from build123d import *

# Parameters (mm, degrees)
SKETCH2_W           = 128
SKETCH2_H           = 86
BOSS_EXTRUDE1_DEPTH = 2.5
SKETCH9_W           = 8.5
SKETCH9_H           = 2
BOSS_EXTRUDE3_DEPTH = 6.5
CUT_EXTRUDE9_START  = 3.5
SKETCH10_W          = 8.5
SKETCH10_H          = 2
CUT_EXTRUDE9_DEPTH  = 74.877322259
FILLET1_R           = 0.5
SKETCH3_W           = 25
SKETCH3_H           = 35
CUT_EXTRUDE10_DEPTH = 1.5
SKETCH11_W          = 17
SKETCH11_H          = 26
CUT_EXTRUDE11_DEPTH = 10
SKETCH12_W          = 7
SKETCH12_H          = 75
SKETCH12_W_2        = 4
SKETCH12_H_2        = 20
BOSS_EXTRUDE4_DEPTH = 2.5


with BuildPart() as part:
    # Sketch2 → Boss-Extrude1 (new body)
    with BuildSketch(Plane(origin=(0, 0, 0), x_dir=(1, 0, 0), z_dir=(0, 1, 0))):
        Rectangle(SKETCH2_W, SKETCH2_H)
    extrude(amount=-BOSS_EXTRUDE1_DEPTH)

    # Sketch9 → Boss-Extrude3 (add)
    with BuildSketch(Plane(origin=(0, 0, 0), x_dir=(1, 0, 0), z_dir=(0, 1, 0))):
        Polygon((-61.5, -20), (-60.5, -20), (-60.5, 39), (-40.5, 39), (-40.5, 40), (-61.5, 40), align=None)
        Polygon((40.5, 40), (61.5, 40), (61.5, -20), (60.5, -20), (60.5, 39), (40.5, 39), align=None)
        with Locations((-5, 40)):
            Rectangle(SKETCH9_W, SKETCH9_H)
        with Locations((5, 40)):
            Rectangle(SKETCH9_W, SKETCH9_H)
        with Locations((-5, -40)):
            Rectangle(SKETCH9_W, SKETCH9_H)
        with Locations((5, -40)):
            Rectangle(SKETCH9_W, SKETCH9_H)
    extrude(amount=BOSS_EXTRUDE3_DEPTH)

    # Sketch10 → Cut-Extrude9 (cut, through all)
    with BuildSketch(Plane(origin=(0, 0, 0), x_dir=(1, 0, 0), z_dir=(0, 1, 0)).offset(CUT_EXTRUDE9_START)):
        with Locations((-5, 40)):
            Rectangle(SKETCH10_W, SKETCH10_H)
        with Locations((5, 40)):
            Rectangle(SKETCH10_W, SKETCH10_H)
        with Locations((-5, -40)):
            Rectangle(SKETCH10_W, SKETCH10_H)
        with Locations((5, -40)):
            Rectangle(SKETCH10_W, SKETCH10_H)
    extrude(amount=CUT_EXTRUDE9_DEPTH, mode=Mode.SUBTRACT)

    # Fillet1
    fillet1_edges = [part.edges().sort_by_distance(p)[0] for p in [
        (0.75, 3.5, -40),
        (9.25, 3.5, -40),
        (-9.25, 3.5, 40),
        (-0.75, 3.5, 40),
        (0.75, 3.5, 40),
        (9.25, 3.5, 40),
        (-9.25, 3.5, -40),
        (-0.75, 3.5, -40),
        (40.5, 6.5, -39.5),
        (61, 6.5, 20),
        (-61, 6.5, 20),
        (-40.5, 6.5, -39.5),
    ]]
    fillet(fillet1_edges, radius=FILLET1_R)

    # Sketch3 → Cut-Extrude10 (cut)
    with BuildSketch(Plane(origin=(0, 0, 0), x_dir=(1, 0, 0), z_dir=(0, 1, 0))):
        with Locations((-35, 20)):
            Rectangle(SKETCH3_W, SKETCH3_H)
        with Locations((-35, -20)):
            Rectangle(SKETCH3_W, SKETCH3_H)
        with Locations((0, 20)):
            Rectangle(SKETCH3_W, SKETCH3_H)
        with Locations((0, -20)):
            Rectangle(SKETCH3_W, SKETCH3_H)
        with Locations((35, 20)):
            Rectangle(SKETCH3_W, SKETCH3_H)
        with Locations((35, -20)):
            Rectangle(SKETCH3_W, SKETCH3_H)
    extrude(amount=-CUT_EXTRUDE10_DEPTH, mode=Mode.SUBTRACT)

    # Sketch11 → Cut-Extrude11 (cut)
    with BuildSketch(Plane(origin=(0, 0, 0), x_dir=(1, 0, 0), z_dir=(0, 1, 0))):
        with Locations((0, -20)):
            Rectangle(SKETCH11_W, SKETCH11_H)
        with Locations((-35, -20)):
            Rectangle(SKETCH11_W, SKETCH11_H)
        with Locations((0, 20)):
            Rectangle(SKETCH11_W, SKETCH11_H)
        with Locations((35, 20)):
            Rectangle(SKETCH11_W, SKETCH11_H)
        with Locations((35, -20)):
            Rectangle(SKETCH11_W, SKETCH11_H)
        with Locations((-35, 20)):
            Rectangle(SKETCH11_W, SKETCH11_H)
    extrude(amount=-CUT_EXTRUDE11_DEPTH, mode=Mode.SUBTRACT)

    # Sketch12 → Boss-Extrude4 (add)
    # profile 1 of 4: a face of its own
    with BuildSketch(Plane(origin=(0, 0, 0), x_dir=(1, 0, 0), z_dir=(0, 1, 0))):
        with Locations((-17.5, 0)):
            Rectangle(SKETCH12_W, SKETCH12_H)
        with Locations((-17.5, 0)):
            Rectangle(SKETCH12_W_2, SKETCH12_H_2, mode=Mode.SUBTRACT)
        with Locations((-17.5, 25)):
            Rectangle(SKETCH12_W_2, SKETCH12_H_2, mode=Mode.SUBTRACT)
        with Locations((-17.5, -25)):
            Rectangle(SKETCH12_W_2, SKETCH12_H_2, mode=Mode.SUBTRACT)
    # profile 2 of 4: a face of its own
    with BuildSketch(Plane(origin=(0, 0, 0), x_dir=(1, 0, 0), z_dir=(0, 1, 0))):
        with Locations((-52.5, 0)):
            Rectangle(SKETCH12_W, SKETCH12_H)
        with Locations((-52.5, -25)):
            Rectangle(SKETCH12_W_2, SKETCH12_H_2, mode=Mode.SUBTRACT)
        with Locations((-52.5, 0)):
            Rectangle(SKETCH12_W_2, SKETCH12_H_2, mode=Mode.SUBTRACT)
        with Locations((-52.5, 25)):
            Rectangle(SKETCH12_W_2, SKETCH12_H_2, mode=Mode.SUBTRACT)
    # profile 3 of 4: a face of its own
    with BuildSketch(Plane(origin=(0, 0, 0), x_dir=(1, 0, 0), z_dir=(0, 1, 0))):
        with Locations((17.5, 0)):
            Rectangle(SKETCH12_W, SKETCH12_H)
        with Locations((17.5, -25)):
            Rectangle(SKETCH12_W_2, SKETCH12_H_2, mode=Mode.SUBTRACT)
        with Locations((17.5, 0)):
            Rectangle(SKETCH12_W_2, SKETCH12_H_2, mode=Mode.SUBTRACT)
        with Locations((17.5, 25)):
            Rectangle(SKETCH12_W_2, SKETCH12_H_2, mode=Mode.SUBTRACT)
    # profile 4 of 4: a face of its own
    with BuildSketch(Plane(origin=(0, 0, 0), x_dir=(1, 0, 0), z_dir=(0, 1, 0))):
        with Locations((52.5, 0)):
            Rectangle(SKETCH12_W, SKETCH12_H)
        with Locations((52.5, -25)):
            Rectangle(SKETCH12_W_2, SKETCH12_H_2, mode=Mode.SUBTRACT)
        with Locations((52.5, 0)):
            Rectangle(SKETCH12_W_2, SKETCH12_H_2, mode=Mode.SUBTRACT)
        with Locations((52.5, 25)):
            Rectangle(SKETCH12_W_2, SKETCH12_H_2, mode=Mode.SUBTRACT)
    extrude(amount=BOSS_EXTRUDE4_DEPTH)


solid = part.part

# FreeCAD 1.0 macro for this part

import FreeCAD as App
import Part
import Sketcher
from FreeCAD import Vector
Q = App.Units.Quantity


def edges_at(feature, points):
    """Names of the edges that pass closest to the given points."""
    edges = feature.Shape.Edges
    near = lambda p: min(range(len(edges)), key=lambda i: edges[i].distToShape(Part.Vertex(*p))[0])
    return sorted({f"Edge{near(p) + 1}" for p in points})


def add_polygon(sketch, points):
    """Adds a closed chain of lines whose ends are joined by coincident constraints."""
    first, n = sketch.GeometryCount, len(points)
    for a, b in zip(points, points[1:] + points[:1]):
        sketch.addGeometry(Part.LineSegment(App.Vector(*a, 0), App.Vector(*b, 0)), False)
    for i in range(n):
        sketch.addConstraint(Sketcher.Constraint("Coincident", first + i, 2, first + (i + 1) % n, 1))

doc = App.newDocument("Part")
params = doc.addObject("Spreadsheet::Sheet", "Params")
for row, (alias, value) in enumerate([
    ("sketch1_width", "128 mm"),
    ("sketch1_height", "86 mm"),
    ("pad1_length", "2.5 mm"),
    ("sketch2_width", "1 mm"),
    ("sketch2_width2", "20 mm"),
    ("sketch2_height", "59 mm"),
    ("sketch2_height2", "2 mm"),
    ("sketch2_width3", "8.5 mm"),
    ("pad2_length", "6.5 mm"),
    ("sketch3_height", "2 mm"),
    ("sketch3_width", "8.5 mm"),
    ("fillet_radius", "0.5 mm"),
    ("sketch4_width", "25 mm"),
    ("sketch4_height", "35 mm"),
    ("pocket2_length", "1.5 mm"),
    ("sketch5_width", "17 mm"),
    ("sketch5_height", "26 mm"),
    ("pocket3_length", "10 mm"),
    ("sketch6_width", "7 mm"),
    ("sketch6_width2", "4 mm"),
    ("sketch6_height", "75 mm"),
    ("sketch6_height2", "20 mm"),
    ("pad3_length", "2.5 mm"),
], start=1):
    params.set(f"A{row}", alias)
    params.set(f"B{row}", "=" + value)
    params.setAlias(f"B{row}", alias)

body = doc.addObject("PartDesign::Body", "Body")

# Sketch on XZ plane
sketch1 = doc.addObject("Sketcher::SketchObject", "Sketch")
body.addObject(sketch1)
sketch1.AttachmentSupport = (doc.XZ_Plane, [""])
sketch1.MapMode = "FlatFace"
add_polygon(sketch1, [(-64, -43), (-64, 43), (64, 43), (64, -43)])  # lines 0-3
sketch1.addConstraint([
    Sketcher.Constraint("Vertical", 0),
    Sketcher.Constraint("Horizontal", 1),
    Sketcher.Constraint("Vertical", 2),
    Sketcher.Constraint("Horizontal", 3),
    Sketcher.Constraint("Symmetric", 0, 2, 2, 2, -1, 1),
    Sketcher.Constraint("DistanceX", 1, 1, 1, 2, Q("128 mm")),
    Sketcher.Constraint("DistanceY", 0, 1, 0, 2, Q("86 mm")),
])
sketch1.setExpression("Constraints[9]", "Params.sketch1_width")
sketch1.setExpression("Constraints[10]", "Params.sketch1_height")
pad1 = doc.addObject("PartDesign::Pad", "Pad")
body.addObject(pad1)
pad1.Profile = sketch1
pad1.setExpression("Length", "Params.pad1_length")

# Sketch on XZ plane
sketch2 = doc.addObject("Sketcher::SketchObject", "Sketch001")
body.addObject(sketch2)
sketch2.AttachmentSupport = (doc.XZ_Plane, [""])
sketch2.MapMode = "FlatFace"
add_polygon(sketch2, [(-61.5, 20), (-60.5, 20), (-60.5, -39), (-40.5, -39), (-40.5, -40), (-61.5, -40)])  # lines 0-5
add_polygon(sketch2, [(61.5, -40), (40.5, -40), (40.5, -39), (60.5, -39), (60.5, 20), (61.5, 20)])  # lines 6-11
add_polygon(sketch2, [(-9.25, -41), (-9.25, -39), (-0.75, -39), (-0.75, -41)])  # lines 12-15
add_polygon(sketch2, [(0.75, -41), (0.75, -39), (9.25, -39), (9.25, -41)])  # lines 16-19
add_polygon(sketch2, [(-9.25, 39), (-9.25, 41), (-0.75, 41), (-0.75, 39)])  # lines 20-23
add_polygon(sketch2, [(0.75, 39), (0.75, 41), (9.25, 41), (9.25, 39)])  # lines 24-27
sketch2.addConstraint([
    Sketcher.Constraint("Horizontal", 0),
    Sketcher.Constraint("Vertical", 1),
    Sketcher.Constraint("Horizontal", 2),
    Sketcher.Constraint("Vertical", 3),
    Sketcher.Constraint("Horizontal", 4),
    Sketcher.Constraint("Vertical", 5),
    Sketcher.Constraint("Horizontal", 6),
    Sketcher.Constraint("Vertical", 7),
    Sketcher.Constraint("Horizontal", 8),
    Sketcher.Constraint("Vertical", 9),
    Sketcher.Constraint("Horizontal", 10),
    Sketcher.Constraint("Vertical", 11),
    Sketcher.Constraint("Vertical", 12),
    Sketcher.Constraint("Horizontal", 13),
    Sketcher.Constraint("Vertical", 14),
    Sketcher.Constraint("Horizontal", 15),
    Sketcher.Constraint("Vertical", 16),
    Sketcher.Constraint("Horizontal", 17),
    Sketcher.Constraint("Vertical", 18),
    Sketcher.Constraint("Horizontal", 19),
    Sketcher.Constraint("Vertical", 20),
    Sketcher.Constraint("Horizontal", 21),
    Sketcher.Constraint("Vertical", 22),
    Sketcher.Constraint("Horizontal", 23),
    Sketcher.Constraint("Vertical", 24),
    Sketcher.Constraint("Horizontal", 25),
    Sketcher.Constraint("Vertical", 26),
    Sketcher.Constraint("Horizontal", 27),
    Sketcher.Constraint("Symmetric", 18, 2, 20, 2, -1, 1),
    Sketcher.Constraint("Symmetric", 16, 2, 22, 2, -1, 1),
    Sketcher.Constraint("Symmetric", 14, 2, 24, 2, -1, 1),
    Sketcher.Constraint("Symmetric", 12, 2, 26, 2, -1, 1),
    Sketcher.Constraint("Symmetric", 3, 2, 6, 2, -2),
    Sketcher.Constraint("Symmetric", 1, 2, 8, 2, -2),
    Sketcher.Constraint("Symmetric", 5, 2, 10, 2, -2),
    Sketcher.Constraint("Symmetric", 13, 2, 16, 2, -2),
    Sketcher.Constraint("Symmetric", 15, 2, 18, 2, -2),
    Sketcher.Constraint("Horizontal", 8, 2, 12, 2),
    Sketcher.Constraint("Equal", 10, 3),
    Sketcher.Constraint("DistanceX", 0, 1, 0, 2, Q("1 mm")),
    Sketcher.Constraint("DistanceX", 2, 1, 2, 2, Q("20 mm")),
    Sketcher.Constraint("DistanceY", 1, 2, 1, 1, Q("59 mm")),
    Sketcher.Constraint("DistanceY", 12, 1, 12, 2, Q("2 mm")),
    Sketcher.Constraint("DistanceX", 13, 1, 13, 2, Q("8.5 mm")),
    Sketcher.Constraint("DistanceY", -1, 1, 0, 2, Q("20 mm")),
    Sketcher.Constraint("DistanceX", 3, 2, 6, 2, Q("81 mm")),
    Sketcher.Constraint("DistanceX", 12, 2, 16, 2, Q("10 mm")),
])
sketch2.setExpression("Constraints[67]", "Params.sketch2_width")
sketch2.setExpression("Constraints[68]", "Params.sketch2_width2")
sketch2.setExpression("Constraints[69]", "Params.sketch2_height")
sketch2.setExpression("Constraints[70]", "Params.sketch2_height2")
sketch2.setExpression("Constraints[71]", "Params.sketch2_width3")
pad2 = doc.addObject("PartDesign::Pad", "Pad001")
body.addObject(pad2)
pad2.Profile = sketch2
pad2.setExpression("Length", "Params.pad2_length")
pad2.Reversed = True

# Sketch on XZ plane
sketch3 = doc.addObject("Sketcher::SketchObject", "Sketch002")
body.addObject(sketch3)
sketch3.AttachmentSupport = (doc.XZ_Plane, [""])
sketch3.MapMode = "FlatFace"
sketch3.AttachmentOffset = App.Placement(Vector(0, 0, -3.5), App.Rotation())
add_polygon(sketch3, [(-9.25, -41), (-9.25, -39), (-0.75, -39), (-0.75, -41)])  # lines 0-3
add_polygon(sketch3, [(0.75, -41), (0.75, -39), (9.25, -39), (9.25, -41)])  # lines 4-7
add_polygon(sketch3, [(-9.25, 39), (-9.25, 41), (-0.75, 41), (-0.75, 39)])  # lines 8-11
add_polygon(sketch3, [(0.75, 39), (0.75, 41), (9.25, 41), (9.25, 39)])  # lines 12-15
sketch3.addConstraint([
    Sketcher.Constraint("Vertical", 0),
    Sketcher.Constraint("Horizontal", 1),
    Sketcher.Constraint("Vertical", 2),
    Sketcher.Constraint("Horizontal", 3),
    Sketcher.Constraint("Vertical", 4),
    Sketcher.Constraint("Horizontal", 5),
    Sketcher.Constraint("Vertical", 6),
    Sketcher.Constraint("Horizontal", 7),
    Sketcher.Constraint("Vertical", 8),
    Sketcher.Constraint("Horizontal", 9),
    Sketcher.Constraint("Vertical", 10),
    Sketcher.Constraint("Horizontal", 11),
    Sketcher.Constraint("Vertical", 12),
    Sketcher.Constraint("Horizontal", 13),
    Sketcher.Constraint("Vertical", 14),
    Sketcher.Constraint("Horizontal", 15),
    Sketcher.Constraint("Symmetric", 6, 2, 8, 2, -1, 1),
    Sketcher.Constraint("Symmetric", 4, 2, 10, 2, -1, 1),
    Sketcher.Constraint("Symmetric", 2, 2, 12, 2, -1, 1),
    Sketcher.Constraint("Symmetric", 0, 2, 14, 2, -1, 1),
    Sketcher.Constraint("Symmetric", 1, 2, 4, 2, -2),
    Sketcher.Constraint("Symmetric", 3, 2, 6, 2, -2),
    Sketcher.Constraint("DistanceY", 0, 1, 0, 2, Q("2 mm")),
    Sketcher.Constraint("DistanceX", 1, 1, 1, 2, Q("8.5 mm")),
    Sketcher.Constraint("DistanceY", 0, 2, -1, 1, Q("39 mm")),
    Sketcher.Constraint("DistanceX", 0, 2, 4, 2, Q("10 mm")),
])
sketch3.setExpression("Constraints[38]", "Params.sketch3_height")
sketch3.setExpression("Constraints[39]", "Params.sketch3_width")
pocket1 = doc.addObject("PartDesign::Pocket", "Pocket")
body.addObject(pocket1)
pocket1.Profile = sketch3
pocket1.Type = "ThroughAll"
doc.recompute()

fillet = doc.addObject("PartDesign::Fillet", "Fillet")
body.addObject(fillet)
fillet.Base = (pocket1, edges_at(pocket1, [
    (0.75, 3.5, -40),
    (9.25, 3.5, -40),
    (-9.25, 3.5, 40),
    (-0.75, 3.5, 40),
    (0.75, 3.5, 40),
    (9.25, 3.5, 40),
    (-9.25, 3.5, -40),
    (-0.75, 3.5, -40),
    (40.5, 6.5, -39.5),
    (61, 6.5, 20),
    (-61, 6.5, 20),
    (-40.5, 6.5, -39.5),
]))
fillet.setExpression("Radius", "Params.fillet_radius")

# Sketch on XZ plane
sketch4 = doc.addObject("Sketcher::SketchObject", "Sketch003")
body.addObject(sketch4)
sketch4.AttachmentSupport = (doc.XZ_Plane, [""])
sketch4.MapMode = "FlatFace"
add_polygon(sketch4, [(-47.5, -37.5), (-47.5, -2.5), (-22.5, -2.5), (-22.5, -37.5)])  # lines 0-3
add_polygon(sketch4, [(-47.5, 2.5), (-47.5, 37.5), (-22.5, 37.5), (-22.5, 2.5)])  # lines 4-7
add_polygon(sketch4, [(-12.5, -37.5), (-12.5, -2.5), (12.5, -2.5), (12.5, -37.5)])  # lines 8-11
add_polygon(sketch4, [(-12.5, 2.5), (-12.5, 37.5), (12.5, 37.5), (12.5, 2.5)])  # lines 12-15
add_polygon(sketch4, [(22.5, -37.5), (22.5, -2.5), (47.5, -2.5), (47.5, -37.5)])  # lines 16-19
add_polygon(sketch4, [(22.5, 2.5), (22.5, 37.5), (47.5, 37.5), (47.5, 2.5)])  # lines 20-23
sketch4.addConstraint([
    Sketcher.Constraint("Vertical", 0),
    Sketcher.Constraint("Horizontal", 1),
    Sketcher.Constraint("Vertical", 2),
    Sketcher.Constraint("Horizontal", 3),
    Sketcher.Constraint("Vertical", 4),
    Sketcher.Constraint("Horizontal", 5),
    Sketcher.Constraint("Vertical", 6),
    Sketcher.Constraint("Horizontal", 7),
    Sketcher.Constraint("Vertical", 8),
    Sketcher.Constraint("Horizontal", 9),
    Sketcher.Constraint("Vertical", 10),
    Sketcher.Constraint("Horizontal", 11),
    Sketcher.Constraint("Vertical", 12),
    Sketcher.Constraint("Horizontal", 13),
    Sketcher.Constraint("Vertical", 14),
    Sketcher.Constraint("Horizontal", 15),
    Sketcher.Constraint("Vertical", 16),
    Sketcher.Constraint("Horizontal", 17),
    Sketcher.Constraint("Vertical", 18),
    Sketcher.Constraint("Horizontal", 19),
    Sketcher.Constraint("Vertical", 20),
    Sketcher.Constraint("Horizontal", 21),
    Sketcher.Constraint("Vertical", 22),
    Sketcher.Constraint("Horizontal", 23),
    Sketcher.Constraint("Symmetric", 10, 2, 12, 2, -1, 1),
    Sketcher.Constraint("Symmetric", 8, 2, 14, 2, -1, 1),
    Sketcher.Constraint("Symmetric", 6, 2, 16, 2, -1, 1),
    Sketcher.Constraint("Symmetric", 4, 2, 18, 2, -1, 1),
    Sketcher.Constraint("Symmetric", 2, 2, 20, 2, -1, 1),
    Sketcher.Constraint("Symmetric", 0, 2, 22, 2, -1, 1),
    Sketcher.Constraint("Symmetric", 1, 2, 16, 2, -2),
    Sketcher.Constraint("Symmetric", 3, 2, 18, 2, -2),
    Sketcher.Constraint("Horizontal", 1, 2, 8, 2),
    Sketcher.Constraint("Horizontal", 3, 2, 10, 2),
    Sketcher.Constraint("Vertical", 11, 2, 12, 2),
    Sketcher.Constraint("Equal", 7, 9),
    Sketcher.Constraint("DistanceX", 1, 1, 1, 2, Q("25 mm")),
    Sketcher.Constraint("DistanceY", 0, 1, 0, 2, Q("35 mm")),
    Sketcher.Constraint("DistanceY", 0, 2, 4, 2, Q("40 mm")),
    Sketcher.Constraint("DistanceX", 1, 2, 8, 2, Q("10 mm")),
])
sketch4.setExpression("Constraints[60]", "Params.sketch4_width")
sketch4.setExpression("Constraints[61]", "Params.sketch4_height")
pocket2 = doc.addObject("PartDesign::Pocket", "Pocket001")
body.addObject(pocket2)
pocket2.Profile = sketch4
pocket2.setExpression("Length", "Params.pocket2_length")
pocket2.Reversed = True

# Sketch on XZ plane
sketch5 = doc.addObject("Sketcher::SketchObject", "Sketch004")
body.addObject(sketch5)
sketch5.AttachmentSupport = (doc.XZ_Plane, [""])
sketch5.MapMode = "FlatFace"
add_polygon(sketch5, [(-8.5, 7), (-8.5, 33), (8.5, 33), (8.5, 7)])  # lines 0-3
add_polygon(sketch5, [(-43.5, 7), (-43.5, 33), (-26.5, 33), (-26.5, 7)])  # lines 4-7
add_polygon(sketch5, [(-8.5, -33), (-8.5, -7), (8.5, -7), (8.5, -33)])  # lines 8-11
add_polygon(sketch5, [(26.5, -33), (26.5, -7), (43.5, -7), (43.5, -33)])  # lines 12-15
add_polygon(sketch5, [(26.5, 7), (26.5, 33), (43.5, 33), (43.5, 7)])  # lines 16-19
add_polygon(sketch5, [(-43.5, -33), (-43.5, -7), (-26.5, -7), (-26.5, -33)])  # lines 20-23
sketch5.addConstraint([
    Sketcher.Constraint("Vertical", 0),
    Sketcher.Constraint("Horizontal", 1),
    Sketcher.Constraint("Vertical", 2),
    Sketcher.Constraint("Horizontal", 3),
    Sketcher.Constraint("Vertical", 4),
    Sketcher.Constraint("Horizontal", 5),
    Sketcher.Constraint("Vertical", 6),
    Sketcher.Constraint("Horizontal", 7),
    Sketcher.Constraint("Vertical", 8),
    Sketcher.Constraint("Horizontal", 9),
    Sketcher.Constraint("Vertical", 10),
    Sketcher.Constraint("Horizontal", 11),
    Sketcher.Constraint("Vertical", 12),
    Sketcher.Constraint("Horizontal", 13),
    Sketcher.Constraint("Vertical", 14),
    Sketcher.Constraint("Horizontal", 15),
    Sketcher.Constraint("Vertical", 16),
    Sketcher.Constraint("Horizontal", 17),
    Sketcher.Constraint("Vertical", 18),
    Sketcher.Constraint("Horizontal", 19),
    Sketcher.Constraint("Vertical", 20),
    Sketcher.Constraint("Horizontal", 21),
    Sketcher.Constraint("Vertical", 22),
    Sketcher.Constraint("Horizontal", 23),
    Sketcher.Constraint("Symmetric", 2, 2, 8, 2, -1, 1),
    Sketcher.Constraint("Symmetric", 0, 2, 10, 2, -1, 1),
    Sketcher.Constraint("Symmetric", 6, 2, 12, 2, -1, 1),
    Sketcher.Constraint("Symmetric", 4, 2, 14, 2, -1, 1),
    Sketcher.Constraint("Symmetric", 18, 2, 20, 2, -1, 1),
    Sketcher.Constraint("Symmetric", 16, 2, 22, 2, -1, 1),
    Sketcher.Constraint("Symmetric", 5, 2, 16, 2, -2),
    Sketcher.Constraint("Symmetric", 7, 2, 18, 2, -2),
    Sketcher.Constraint("Horizontal", 1, 2, 4, 2),
    Sketcher.Constraint("Horizontal", 3, 2, 6, 2),
    Sketcher.Constraint("Vertical", 3, 2, 8, 2),
    Sketcher.Constraint("Equal", 3, 5),
    Sketcher.Constraint("DistanceX", 1, 1, 1, 2, Q("17 mm")),
    Sketcher.Constraint("DistanceY", 0, 1, 0, 2, Q("26 mm")),
    Sketcher.Constraint("DistanceY", -1, 1, 0, 2, Q("33 mm")),
    Sketcher.Constraint("DistanceX", 4, 2, 0, 2, Q("35 mm")),
])
sketch5.setExpression("Constraints[60]", "Params.sketch5_width")
sketch5.setExpression("Constraints[61]", "Params.sketch5_height")
pocket3 = doc.addObject("PartDesign::Pocket", "Pocket002")
body.addObject(pocket3)
pocket3.Profile = sketch5
pocket3.setExpression("Length", "Params.pocket3_length")
pocket3.Reversed = True

# Sketch on XZ plane
sketch6 = doc.addObject("Sketcher::SketchObject", "Sketch005")
body.addObject(sketch6)
sketch6.AttachmentSupport = (doc.XZ_Plane, [""])
sketch6.MapMode = "FlatFace"
add_polygon(sketch6, [(-21, -37.5), (-21, 37.5), (-14, 37.5), (-14, -37.5)])  # lines 0-3
add_polygon(sketch6, [(-15.5, 35), (-19.5, 35), (-19.5, 15), (-15.5, 15)])  # lines 4-7
add_polygon(sketch6, [(-15.5, 10), (-19.5, 10), (-19.5, -10), (-15.5, -10)])  # lines 8-11
add_polygon(sketch6, [(-15.5, -15), (-19.5, -15), (-19.5, -35), (-15.5, -35)])  # lines 12-15
add_polygon(sketch6, [(-56, -37.5), (-56, 37.5), (-49, 37.5), (-49, -37.5)])  # lines 16-19
add_polygon(sketch6, [(-50.5, 35), (-54.5, 35), (-54.5, 15), (-50.5, 15)])  # lines 20-23
add_polygon(sketch6, [(-50.5, 10), (-54.5, 10), (-54.5, -10), (-50.5, -10)])  # lines 24-27
add_polygon(sketch6, [(-50.5, -15), (-54.5, -15), (-54.5, -35), (-50.5, -35)])  # lines 28-31
add_polygon(sketch6, [(14, -37.5), (14, 37.5), (21, 37.5), (21, -37.5)])  # lines 32-35
add_polygon(sketch6, [(19.5, 35), (15.5, 35), (15.5, 15), (19.5, 15)])  # lines 36-39
add_polygon(sketch6, [(19.5, 10), (15.5, 10), (15.5, -10), (19.5, -10)])  # lines 40-43
add_polygon(sketch6, [(19.5, -15), (15.5, -15), (15.5, -35), (19.5, -35)])  # lines 44-47
add_polygon(sketch6, [(49, -37.5), (49, 37.5), (56, 37.5), (56, -37.5)])  # lines 48-51
add_polygon(sketch6, [(54.5, 35), (50.5, 35), (50.5, 15), (54.5, 15)])  # lines 52-55
add_polygon(sketch6, [(54.5, 10), (50.5, 10), (50.5, -10), (54.5, -10)])  # lines 56-59
add_polygon(sketch6, [(54.5, -15), (50.5, -15), (50.5, -35), (54.5, -35)])  # lines 60-63
sketch6.addConstraint([
    Sketcher.Constraint("Vertical", 0),
    Sketcher.Constraint("Horizontal", 1),
    Sketcher.Constraint("Vertical", 2),
    Sketcher.Constraint("Horizontal", 3),
    Sketcher.Constraint("Horizontal", 4),
    Sketcher.Constraint("Vertical", 5),
    Sketcher.Constraint("Horizontal", 6),
    Sketcher.Constraint("Vertical", 7),
    Sketcher.Constraint("Horizontal", 8),
    Sketcher.Constraint("Vertical", 9),
    Sketcher.Constraint("Horizontal", 10),
    Sketcher.Constraint("Vertical", 11),
    Sketcher.Constraint("Horizontal", 12),
    Sketcher.Constraint("Vertical", 13),
    Sketcher.Constraint("Horizontal", 14),
    Sketcher.Constraint("Vertical", 15),
    Sketcher.Constraint("Vertical", 16),
    Sketcher.Constraint("Horizontal", 17),
    Sketcher.Constraint("Vertical", 18),
    Sketcher.Constraint("Horizontal", 19),
    Sketcher.Constraint("Horizontal", 20),
    Sketcher.Constraint("Vertical", 21),
    Sketcher.Constraint("Horizontal", 22),
    Sketcher.Constraint("Vertical", 23),
    Sketcher.Constraint("Horizontal", 24),
    Sketcher.Constraint("Vertical", 25),
    Sketcher.Constraint("Horizontal", 26),
    Sketcher.Constraint("Vertical", 27),
    Sketcher.Constraint("Horizontal", 28),
    Sketcher.Constraint("Vertical", 29),
    Sketcher.Constraint("Horizontal", 30),
    Sketcher.Constraint("Vertical", 31),
    Sketcher.Constraint("Vertical", 32),
    Sketcher.Constraint("Horizontal", 33),
    Sketcher.Constraint("Vertical", 34),
    Sketcher.Constraint("Horizontal", 35),
    Sketcher.Constraint("Horizontal", 36),
    Sketcher.Constraint("Vertical", 37),
    Sketcher.Constraint("Horizontal", 38),
    Sketcher.Constraint("Vertical", 39),
    Sketcher.Constraint("Horizontal", 40),
    Sketcher.Constraint("Vertical", 41),
    Sketcher.Constraint("Horizontal", 42),
    Sketcher.Constraint("Vertical", 43),
    Sketcher.Constraint("Horizontal", 44),
    Sketcher.Constraint("Vertical", 45),
    Sketcher.Constraint("Horizontal", 46),
    Sketcher.Constraint("Vertical", 47),
    Sketcher.Constraint("Vertical", 48),
    Sketcher.Constraint("Horizontal", 49),
    Sketcher.Constraint("Vertical", 50),
    Sketcher.Constraint("Horizontal", 51),
    Sketcher.Constraint("Horizontal", 52),
    Sketcher.Constraint("Vertical", 53),
    Sketcher.Constraint("Horizontal", 54),
    Sketcher.Constraint("Vertical", 55),
    Sketcher.Constraint("Horizontal", 56),
    Sketcher.Constraint("Vertical", 57),
    Sketcher.Constraint("Horizontal", 58),
    Sketcher.Constraint("Vertical", 59),
    Sketcher.Constraint("Horizontal", 60),
    Sketcher.Constraint("Vertical", 61),
    Sketcher.Constraint("Horizontal", 62),
    Sketcher.Constraint("Vertical", 63),
    Sketcher.Constraint("Symmetric", 2, 2, 32, 2, -1, 1),
    Sketcher.Constraint("Symmetric", 0, 2, 34, 2, -1, 1),
    Sketcher.Constraint("Symmetric", 14, 2, 36, 2, -1, 1),
    Sketcher.Constraint("Symmetric", 12, 2, 38, 2, -1, 1),
    Sketcher.Constraint("Symmetric", 10, 2, 40, 2, -1, 1),
    Sketcher.Constraint("Symmetric", 8, 2, 42, 2, -1, 1),
    Sketcher.Constraint("Symmetric", 6, 2, 44, 2, -1, 1),
    Sketcher.Constraint("Symmetric", 4, 2, 46, 2, -1, 1),
    Sketcher.Constraint("Symmetric", 18, 2, 48, 2, -1, 1),
    Sketcher.Constraint("Symmetric", 16, 2, 50, 2, -1, 1),
    Sketcher.Constraint("Symmetric", 30, 2, 52, 2, -1, 1),
    Sketcher.Constraint("Symmetric", 28, 2, 54, 2, -1, 1),
    Sketcher.Constraint("Symmetric", 26, 2, 56, 2, -1, 1),
    Sketcher.Constraint("Symmetric", 24, 2, 58, 2, -1, 1),
    Sketcher.Constraint("Symmetric", 22, 2, 60, 2, -1, 1),
    Sketcher.Constraint("Symmetric", 20, 2, 62, 2, -1, 1),
    Sketcher.Constraint("Symmetric", 7, 2, 36, 2, -2),
    Sketcher.Constraint("Symmetric", 5, 2, 38, 2, -2),
    Sketcher.Constraint("Symmetric", 23, 2, 52, 2, -2),
    Sketcher.Constraint("Symmetric", 21, 2, 54, 2, -2),
    Sketcher.Constraint("Horizontal", 1, 2, 16, 2),
    Sketcher.Constraint("Horizontal", 3, 2, 18, 2),
    Sketcher.Constraint("Horizontal", 7, 2, 20, 2),
    Sketcher.Constraint("Horizontal", 6, 2, 21, 2),
    Sketcher.Constraint("Horizontal", 11, 2, 24, 2),
    Sketcher.Constraint("Horizontal", 10, 2, 25, 2),
    Sketcher.Constraint("Horizontal", 17, 2, 32, 2),
    Sketcher.Constraint("Horizontal", 27, 2, 40, 2),
    Sketcher.Constraint("Vertical", 5, 2, 8, 2),
    Sketcher.Constraint("Vertical", 7, 2, 10, 2),
    Sketcher.Constraint("Vertical", 21, 2, 24, 2),
    Sketcher.Constraint("Vertical", 23, 2, 26, 2),
    Sketcher.Constraint("Equal", 3, 17),
    Sketcher.Constraint("Equal", 14, 20),
    Sketcher.Constraint("Equal", 7, 9),
    Sketcher.Constraint("DistanceX", 1, 1, 1, 2, Q("7 mm")),
    Sketcher.Constraint("DistanceX", 4, 2, 4, 1, Q("4 mm")),
    Sketcher.Constraint("DistanceY", 0, 1, 0, 2, Q("75 mm")),
    Sketcher.Constraint("DistanceY", 5, 2, 5, 1, Q("20 mm")),
    Sketcher.Constraint("DistanceX", 0, 2, -1, 1, Q("21 mm")),
    Sketcher.Constraint("DistanceY", -1, 1, 4, 2, Q("35 mm")),
    Sketcher.Constraint("DistanceX", 16, 2, -1, 1, Q("56 mm")),
    Sketcher.Constraint("DistanceX", 4, 2, -1, 1, Q("19.5 mm")),
    Sketcher.Constraint("DistanceX", 20, 2, -1, 1, Q("54.5 mm")),
])
sketch6.setExpression("Constraints[163]", "Params.sketch6_width")
sketch6.setExpression("Constraints[164]", "Params.sketch6_width2")
sketch6.setExpression("Constraints[165]", "Params.sketch6_height")
sketch6.setExpression("Constraints[166]", "Params.sketch6_height2")
pad3 = doc.addObject("PartDesign::Pad", "Pad002")
body.addObject(pad3)
pad3.Profile = sketch6
pad3.setExpression("Length", "Params.pad3_length")
pad3.Reversed = True

doc.recompute()
